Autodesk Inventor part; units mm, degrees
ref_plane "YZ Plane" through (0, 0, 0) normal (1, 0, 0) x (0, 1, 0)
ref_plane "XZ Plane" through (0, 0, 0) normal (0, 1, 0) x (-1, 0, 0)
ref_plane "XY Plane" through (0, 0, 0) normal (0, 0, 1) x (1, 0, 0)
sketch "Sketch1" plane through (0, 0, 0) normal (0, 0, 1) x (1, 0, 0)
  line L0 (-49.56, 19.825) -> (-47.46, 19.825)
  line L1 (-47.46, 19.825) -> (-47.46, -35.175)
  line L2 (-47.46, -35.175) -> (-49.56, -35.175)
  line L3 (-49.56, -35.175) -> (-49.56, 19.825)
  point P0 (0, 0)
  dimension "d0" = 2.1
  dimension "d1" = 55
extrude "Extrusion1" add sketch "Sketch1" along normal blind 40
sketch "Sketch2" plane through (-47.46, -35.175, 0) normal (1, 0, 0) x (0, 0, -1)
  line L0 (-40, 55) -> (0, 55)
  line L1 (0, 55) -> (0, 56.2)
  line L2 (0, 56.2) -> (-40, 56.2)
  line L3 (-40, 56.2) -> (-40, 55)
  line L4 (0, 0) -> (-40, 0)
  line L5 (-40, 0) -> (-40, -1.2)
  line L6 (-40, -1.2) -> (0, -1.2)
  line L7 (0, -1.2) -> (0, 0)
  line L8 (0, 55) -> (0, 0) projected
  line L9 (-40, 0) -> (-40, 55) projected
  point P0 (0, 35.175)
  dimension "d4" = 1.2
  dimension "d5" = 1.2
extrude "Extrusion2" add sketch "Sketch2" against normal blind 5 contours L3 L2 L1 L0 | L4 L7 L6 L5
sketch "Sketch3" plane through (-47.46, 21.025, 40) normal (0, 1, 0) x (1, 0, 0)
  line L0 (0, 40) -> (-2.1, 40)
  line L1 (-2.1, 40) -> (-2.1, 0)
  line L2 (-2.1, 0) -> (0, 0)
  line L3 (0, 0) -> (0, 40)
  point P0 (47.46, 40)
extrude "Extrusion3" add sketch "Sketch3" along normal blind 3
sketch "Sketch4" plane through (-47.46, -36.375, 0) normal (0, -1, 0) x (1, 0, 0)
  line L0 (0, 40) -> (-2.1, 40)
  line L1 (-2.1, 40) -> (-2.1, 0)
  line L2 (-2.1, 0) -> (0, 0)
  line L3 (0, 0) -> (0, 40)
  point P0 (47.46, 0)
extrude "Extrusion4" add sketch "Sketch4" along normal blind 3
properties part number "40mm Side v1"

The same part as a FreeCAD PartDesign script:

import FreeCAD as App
import Part
import Sketcher
Q = App.Units.Quantity


def add_polygon(sketch, points):
    """Adds a closed chain of lines whose ends are joined by coincident constraints."""
    first, n = sketch.GeometryCount, len(points)
    for a, b in zip(points, points[1:] + points[:1]):
        sketch.addGeometry(Part.LineSegment(App.Vector(*a, 0), App.Vector(*b, 0)), False)
    for i in range(n):
        sketch.addConstraint(Sketcher.Constraint("Coincident", first + i, 2, first + (i + 1) % n, 1))

doc = App.newDocument("Part")
body = doc.addObject("PartDesign::Body", "Body")

sketch1 = doc.addObject("Sketcher::SketchObject", "Sketch")
body.addObject(sketch1)
sketch1.AttachmentSupport = (doc.XY_Plane, [""])
sketch1.MapMode = "FlatFace"
add_polygon(sketch1, [(-47.46, 19.825), (-49.56, 19.825), (-49.56, -35.175), (-47.46, -35.175)])
sketch1.addConstraint([
    Sketcher.Constraint("Horizontal", 0),
    Sketcher.Constraint("Vertical", 1),
    Sketcher.Constraint("Horizontal", 2),
    Sketcher.Constraint("Vertical", 3),
    Sketcher.Constraint("DistanceY", 1, 2, 1, 1, Q("55 mm")),
    Sketcher.Constraint("DistanceX", 0, 2, 0, 1, Q("2.1 mm")),
    Sketcher.Constraint("DistanceX", 0, 2, -1, 1, Q("49.56 mm")),
    Sketcher.Constraint("DistanceY", -1, 1, 0, 2, Q("19.825 mm")),
])
pad1 = doc.addObject("PartDesign::Pad", "Pad")
body.addObject(pad1)
pad1.Profile = sketch1
pad1.Length = 40

sketch2 = doc.addObject("Sketcher::SketchObject", "Sketch001")
body.addObject(sketch2)
sketch2.AttachmentSupport = (doc.YZ_Plane, [""])
sketch2.MapMode = "FlatFace"
sketch2.AttachmentOffset = App.Placement(App.Vector(0, 0, -47.46), App.Rotation())
add_polygon(sketch2, [(21.025, 40), (19.825, 40), (19.825, 0), (21.025, 0)])
add_polygon(sketch2, [(-35.175, 0), (-35.175, 40), (-36.375, 40), (-36.375, 0)])
sketch2.addConstraint([
    Sketcher.Constraint("Horizontal", 0),
    Sketcher.Constraint("Vertical", 1),
    Sketcher.Constraint("Horizontal", 2),
    Sketcher.Constraint("Vertical", 3),
    Sketcher.Constraint("Vertical", 4),
    Sketcher.Constraint("Horizontal", 5),
    Sketcher.Constraint("Vertical", 6),
    Sketcher.Constraint("Horizontal", 7),
    Sketcher.Constraint("PointOnObject", 1, 2, -1),
    Sketcher.Constraint("PointOnObject", 6, 2, -1),
    Sketcher.Constraint("Horizontal", 3, 2, 4, 2),
    Sketcher.Constraint("Equal", 2, 5),
    Sketcher.Constraint("DistanceX", 0, 2, 0, 1, Q("1.2 mm")),
    Sketcher.Constraint("DistanceY", 1, 2, 1, 1, Q("40 mm")),
    Sketcher.Constraint("DistanceX", 4, 2, 0, 2, Q("55 mm")),
    Sketcher.Constraint("DistanceX", -1, 1, 0, 2, Q("19.825 mm")),
])
pad2 = doc.addObject("PartDesign::Pad", "Pad001")
body.addObject(pad2)
pad2.Profile = sketch2
pad2.Length = 5
pad2.Reversed = True

sketch3 = doc.addObject("Sketcher::SketchObject", "Sketch002")
body.addObject(sketch3)
sketch3.AttachmentSupport = (doc.XZ_Plane, [""])
sketch3.MapMode = "FlatFace"
sketch3.AttachmentOffset = App.Placement(App.Vector(0, 0, -21.025), App.Rotation())
add_polygon(sketch3, [(-47.46, 40), (-47.46, 0), (-49.56, 0), (-49.56, 40)])
sketch3.addConstraint([
    Sketcher.Constraint("Vertical", 0),
    Sketcher.Constraint("Horizontal", 1),
    Sketcher.Constraint("Vertical", 2),
    Sketcher.Constraint("Horizontal", 3),
    Sketcher.Constraint("PointOnObject", 0, 2, -1),
    Sketcher.Constraint("DistanceY", 0, 2, 0, 1, Q("40 mm")),
    Sketcher.Constraint("DistanceX", 1, 2, 1, 1, Q("2.1 mm")),
    Sketcher.Constraint("DistanceX", 0, 2, -1, 1, Q("47.46 mm")),
])
pad3 = doc.addObject("PartDesign::Pad", "Pad002")
body.addObject(pad3)
pad3.Profile = sketch3
pad3.Length = 3
pad3.Reversed = True

sketch4 = doc.addObject("Sketcher::SketchObject", "Sketch003")
body.addObject(sketch4)
sketch4.AttachmentSupport = (doc.XZ_Plane, [""])
sketch4.MapMode = "FlatFace"
sketch4.AttachmentOffset = App.Placement(App.Vector(0, 0, 36.375), App.Rotation())
add_polygon(sketch4, [(-47.46, 0), (-47.46, 40), (-49.56, 40), (-49.56, 0)])
sketch4.addConstraint([
    Sketcher.Constraint("Vertical", 0),
    Sketcher.Constraint("Horizontal", 1),
    Sketcher.Constraint("Vertical", 2),
    Sketcher.Constraint("Horizontal", 3),
    Sketcher.Constraint("PointOnObject", 2, 2, -1),
    Sketcher.Constraint("DistanceY", 0, 1, 0, 2, Q("40 mm")),
    Sketcher.Constraint("DistanceX", 1, 2, 1, 1, Q("2.1 mm")),
    Sketcher.Constraint("DistanceX", 0, 2, -1, 1, Q("47.46 mm")),
])
pad4 = doc.addObject("PartDesign::Pad", "Pad003")
body.addObject(pad4)
pad4.Profile = sketch4
pad4.Length = 3

doc.recompute()
